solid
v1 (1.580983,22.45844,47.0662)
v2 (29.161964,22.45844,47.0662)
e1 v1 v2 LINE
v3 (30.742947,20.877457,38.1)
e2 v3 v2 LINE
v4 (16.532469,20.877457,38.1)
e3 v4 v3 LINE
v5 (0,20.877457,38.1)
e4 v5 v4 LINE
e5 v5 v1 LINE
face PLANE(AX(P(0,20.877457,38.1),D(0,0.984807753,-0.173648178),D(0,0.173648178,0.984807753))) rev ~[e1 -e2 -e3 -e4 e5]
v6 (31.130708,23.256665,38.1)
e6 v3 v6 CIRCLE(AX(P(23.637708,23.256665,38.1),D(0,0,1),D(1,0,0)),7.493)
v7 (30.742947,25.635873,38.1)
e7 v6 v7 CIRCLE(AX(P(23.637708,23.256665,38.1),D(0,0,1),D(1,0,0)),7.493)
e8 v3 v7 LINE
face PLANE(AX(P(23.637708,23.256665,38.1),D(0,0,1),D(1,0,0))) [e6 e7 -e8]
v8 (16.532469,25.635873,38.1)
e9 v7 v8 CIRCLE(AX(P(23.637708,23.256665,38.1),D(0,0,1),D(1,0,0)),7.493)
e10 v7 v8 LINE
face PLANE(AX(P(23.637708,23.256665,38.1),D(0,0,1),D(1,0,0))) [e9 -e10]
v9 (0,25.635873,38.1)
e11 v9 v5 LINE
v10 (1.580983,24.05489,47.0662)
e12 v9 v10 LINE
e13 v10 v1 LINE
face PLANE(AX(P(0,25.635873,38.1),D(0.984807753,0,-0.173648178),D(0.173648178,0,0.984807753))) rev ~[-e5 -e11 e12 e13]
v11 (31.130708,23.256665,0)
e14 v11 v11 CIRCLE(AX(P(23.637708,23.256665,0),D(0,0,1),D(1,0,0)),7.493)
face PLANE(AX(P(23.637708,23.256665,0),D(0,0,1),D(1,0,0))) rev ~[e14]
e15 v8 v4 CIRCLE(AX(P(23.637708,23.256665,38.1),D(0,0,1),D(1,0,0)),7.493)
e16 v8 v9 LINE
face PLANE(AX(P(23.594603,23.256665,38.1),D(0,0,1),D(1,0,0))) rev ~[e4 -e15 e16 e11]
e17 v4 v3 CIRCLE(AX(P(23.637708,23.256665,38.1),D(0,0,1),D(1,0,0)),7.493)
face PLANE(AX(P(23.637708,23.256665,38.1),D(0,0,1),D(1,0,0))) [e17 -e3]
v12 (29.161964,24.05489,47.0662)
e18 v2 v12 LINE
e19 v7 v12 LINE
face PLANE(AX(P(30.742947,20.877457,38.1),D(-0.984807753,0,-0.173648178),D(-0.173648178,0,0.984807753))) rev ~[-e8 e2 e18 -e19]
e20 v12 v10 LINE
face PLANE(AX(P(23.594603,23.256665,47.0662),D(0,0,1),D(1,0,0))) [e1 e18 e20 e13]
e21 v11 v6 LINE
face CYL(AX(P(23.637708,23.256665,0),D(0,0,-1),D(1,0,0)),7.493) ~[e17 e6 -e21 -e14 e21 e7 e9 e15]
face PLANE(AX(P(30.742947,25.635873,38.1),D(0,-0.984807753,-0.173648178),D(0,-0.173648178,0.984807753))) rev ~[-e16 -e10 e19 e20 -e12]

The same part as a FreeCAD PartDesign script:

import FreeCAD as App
import Part
import Sketcher
from FreeCAD import Vector
Q = App.Units.Quantity

doc = App.newDocument("Part")
body = doc.addObject("PartDesign::Body", "Body")

sketch1 = body.newObject("Sketcher::SketchObject", "Sketch")
sketch1.AttachmentSupport = (doc.getObject("XY_Plane"), [""])
sketch1.MapMode = "FlatFace"
sketch1.addGeometry(Part.Circle(Vector(24, 23, 0), Vector(0, 0, 1), 7), False)
sketch1.addConstraint([
    Sketcher.Constraint("Diameter", 0, Q("0.59 in")),
    Sketcher.Constraint("DistanceX", -1, 1, 0, 3, Q("23.637708 mm")),
    Sketcher.Constraint("DistanceY", -1, 1, 0, 3, Q("23.256665 mm")),
])
pad1 = body.newObject("PartDesign::Pad", "Pad")
pad1.Profile = sketch1
pad1.Length = Q("1.5 in")

sketch2 = body.newObject("Sketcher::SketchObject", "Sketch001")
sketch2.AttachmentSupport = (doc.getObject("XY_Plane"), [""])
sketch2.MapMode = "FlatFace"
sketch2.AttachmentOffset = App.Placement(Vector(0, 0, 1.5 * 25.4), App.Rotation())
sketch2.addGeometry([
    Part.LineSegment(Vector(30.7, 20.9, 0), Vector(30.7, 25.6, 0)),
    Part.LineSegment(Vector(30.7, 25.6, 0), Vector(0, 25.6, 0)),
    Part.LineSegment(Vector(0, 25.6, 0), Vector(0, 20.9, 0)),
    Part.LineSegment(Vector(0, 20.9, 0), Vector(30.7, 20.9, 0)),
], False)
sketch2.addConstraint([
    Sketcher.Constraint("Coincident", 0, 2, 1, 1),
    Sketcher.Constraint("Coincident", 1, 2, 2, 1),
    Sketcher.Constraint("Coincident", 2, 2, 3, 1),
    Sketcher.Constraint("Coincident", 3, 2, 0, 1),
    Sketcher.Constraint("Vertical", 0),
    Sketcher.Constraint("Horizontal", 1),
    Sketcher.Constraint("Vertical", 2),
    Sketcher.Constraint("Horizontal", 3),
    Sketcher.Constraint("PointOnObject", 1, 2, -2),
    Sketcher.Constraint("DistanceX", 1, 2, 1, 1, Q("30.742947 mm")),
    Sketcher.Constraint("DistanceY", 0, 1, 0, 2, Q("4.758416 mm")),
    Sketcher.Constraint("DistanceY", -1, 1, 0, 2, Q("25.635873 mm")),
])
pad2 = body.newObject("PartDesign::Pad", "Pad001")
pad2.Profile = sketch2
pad2.Length = Q("0.353 in")
pad2.TaperAngle = -10

doc.recompute()
